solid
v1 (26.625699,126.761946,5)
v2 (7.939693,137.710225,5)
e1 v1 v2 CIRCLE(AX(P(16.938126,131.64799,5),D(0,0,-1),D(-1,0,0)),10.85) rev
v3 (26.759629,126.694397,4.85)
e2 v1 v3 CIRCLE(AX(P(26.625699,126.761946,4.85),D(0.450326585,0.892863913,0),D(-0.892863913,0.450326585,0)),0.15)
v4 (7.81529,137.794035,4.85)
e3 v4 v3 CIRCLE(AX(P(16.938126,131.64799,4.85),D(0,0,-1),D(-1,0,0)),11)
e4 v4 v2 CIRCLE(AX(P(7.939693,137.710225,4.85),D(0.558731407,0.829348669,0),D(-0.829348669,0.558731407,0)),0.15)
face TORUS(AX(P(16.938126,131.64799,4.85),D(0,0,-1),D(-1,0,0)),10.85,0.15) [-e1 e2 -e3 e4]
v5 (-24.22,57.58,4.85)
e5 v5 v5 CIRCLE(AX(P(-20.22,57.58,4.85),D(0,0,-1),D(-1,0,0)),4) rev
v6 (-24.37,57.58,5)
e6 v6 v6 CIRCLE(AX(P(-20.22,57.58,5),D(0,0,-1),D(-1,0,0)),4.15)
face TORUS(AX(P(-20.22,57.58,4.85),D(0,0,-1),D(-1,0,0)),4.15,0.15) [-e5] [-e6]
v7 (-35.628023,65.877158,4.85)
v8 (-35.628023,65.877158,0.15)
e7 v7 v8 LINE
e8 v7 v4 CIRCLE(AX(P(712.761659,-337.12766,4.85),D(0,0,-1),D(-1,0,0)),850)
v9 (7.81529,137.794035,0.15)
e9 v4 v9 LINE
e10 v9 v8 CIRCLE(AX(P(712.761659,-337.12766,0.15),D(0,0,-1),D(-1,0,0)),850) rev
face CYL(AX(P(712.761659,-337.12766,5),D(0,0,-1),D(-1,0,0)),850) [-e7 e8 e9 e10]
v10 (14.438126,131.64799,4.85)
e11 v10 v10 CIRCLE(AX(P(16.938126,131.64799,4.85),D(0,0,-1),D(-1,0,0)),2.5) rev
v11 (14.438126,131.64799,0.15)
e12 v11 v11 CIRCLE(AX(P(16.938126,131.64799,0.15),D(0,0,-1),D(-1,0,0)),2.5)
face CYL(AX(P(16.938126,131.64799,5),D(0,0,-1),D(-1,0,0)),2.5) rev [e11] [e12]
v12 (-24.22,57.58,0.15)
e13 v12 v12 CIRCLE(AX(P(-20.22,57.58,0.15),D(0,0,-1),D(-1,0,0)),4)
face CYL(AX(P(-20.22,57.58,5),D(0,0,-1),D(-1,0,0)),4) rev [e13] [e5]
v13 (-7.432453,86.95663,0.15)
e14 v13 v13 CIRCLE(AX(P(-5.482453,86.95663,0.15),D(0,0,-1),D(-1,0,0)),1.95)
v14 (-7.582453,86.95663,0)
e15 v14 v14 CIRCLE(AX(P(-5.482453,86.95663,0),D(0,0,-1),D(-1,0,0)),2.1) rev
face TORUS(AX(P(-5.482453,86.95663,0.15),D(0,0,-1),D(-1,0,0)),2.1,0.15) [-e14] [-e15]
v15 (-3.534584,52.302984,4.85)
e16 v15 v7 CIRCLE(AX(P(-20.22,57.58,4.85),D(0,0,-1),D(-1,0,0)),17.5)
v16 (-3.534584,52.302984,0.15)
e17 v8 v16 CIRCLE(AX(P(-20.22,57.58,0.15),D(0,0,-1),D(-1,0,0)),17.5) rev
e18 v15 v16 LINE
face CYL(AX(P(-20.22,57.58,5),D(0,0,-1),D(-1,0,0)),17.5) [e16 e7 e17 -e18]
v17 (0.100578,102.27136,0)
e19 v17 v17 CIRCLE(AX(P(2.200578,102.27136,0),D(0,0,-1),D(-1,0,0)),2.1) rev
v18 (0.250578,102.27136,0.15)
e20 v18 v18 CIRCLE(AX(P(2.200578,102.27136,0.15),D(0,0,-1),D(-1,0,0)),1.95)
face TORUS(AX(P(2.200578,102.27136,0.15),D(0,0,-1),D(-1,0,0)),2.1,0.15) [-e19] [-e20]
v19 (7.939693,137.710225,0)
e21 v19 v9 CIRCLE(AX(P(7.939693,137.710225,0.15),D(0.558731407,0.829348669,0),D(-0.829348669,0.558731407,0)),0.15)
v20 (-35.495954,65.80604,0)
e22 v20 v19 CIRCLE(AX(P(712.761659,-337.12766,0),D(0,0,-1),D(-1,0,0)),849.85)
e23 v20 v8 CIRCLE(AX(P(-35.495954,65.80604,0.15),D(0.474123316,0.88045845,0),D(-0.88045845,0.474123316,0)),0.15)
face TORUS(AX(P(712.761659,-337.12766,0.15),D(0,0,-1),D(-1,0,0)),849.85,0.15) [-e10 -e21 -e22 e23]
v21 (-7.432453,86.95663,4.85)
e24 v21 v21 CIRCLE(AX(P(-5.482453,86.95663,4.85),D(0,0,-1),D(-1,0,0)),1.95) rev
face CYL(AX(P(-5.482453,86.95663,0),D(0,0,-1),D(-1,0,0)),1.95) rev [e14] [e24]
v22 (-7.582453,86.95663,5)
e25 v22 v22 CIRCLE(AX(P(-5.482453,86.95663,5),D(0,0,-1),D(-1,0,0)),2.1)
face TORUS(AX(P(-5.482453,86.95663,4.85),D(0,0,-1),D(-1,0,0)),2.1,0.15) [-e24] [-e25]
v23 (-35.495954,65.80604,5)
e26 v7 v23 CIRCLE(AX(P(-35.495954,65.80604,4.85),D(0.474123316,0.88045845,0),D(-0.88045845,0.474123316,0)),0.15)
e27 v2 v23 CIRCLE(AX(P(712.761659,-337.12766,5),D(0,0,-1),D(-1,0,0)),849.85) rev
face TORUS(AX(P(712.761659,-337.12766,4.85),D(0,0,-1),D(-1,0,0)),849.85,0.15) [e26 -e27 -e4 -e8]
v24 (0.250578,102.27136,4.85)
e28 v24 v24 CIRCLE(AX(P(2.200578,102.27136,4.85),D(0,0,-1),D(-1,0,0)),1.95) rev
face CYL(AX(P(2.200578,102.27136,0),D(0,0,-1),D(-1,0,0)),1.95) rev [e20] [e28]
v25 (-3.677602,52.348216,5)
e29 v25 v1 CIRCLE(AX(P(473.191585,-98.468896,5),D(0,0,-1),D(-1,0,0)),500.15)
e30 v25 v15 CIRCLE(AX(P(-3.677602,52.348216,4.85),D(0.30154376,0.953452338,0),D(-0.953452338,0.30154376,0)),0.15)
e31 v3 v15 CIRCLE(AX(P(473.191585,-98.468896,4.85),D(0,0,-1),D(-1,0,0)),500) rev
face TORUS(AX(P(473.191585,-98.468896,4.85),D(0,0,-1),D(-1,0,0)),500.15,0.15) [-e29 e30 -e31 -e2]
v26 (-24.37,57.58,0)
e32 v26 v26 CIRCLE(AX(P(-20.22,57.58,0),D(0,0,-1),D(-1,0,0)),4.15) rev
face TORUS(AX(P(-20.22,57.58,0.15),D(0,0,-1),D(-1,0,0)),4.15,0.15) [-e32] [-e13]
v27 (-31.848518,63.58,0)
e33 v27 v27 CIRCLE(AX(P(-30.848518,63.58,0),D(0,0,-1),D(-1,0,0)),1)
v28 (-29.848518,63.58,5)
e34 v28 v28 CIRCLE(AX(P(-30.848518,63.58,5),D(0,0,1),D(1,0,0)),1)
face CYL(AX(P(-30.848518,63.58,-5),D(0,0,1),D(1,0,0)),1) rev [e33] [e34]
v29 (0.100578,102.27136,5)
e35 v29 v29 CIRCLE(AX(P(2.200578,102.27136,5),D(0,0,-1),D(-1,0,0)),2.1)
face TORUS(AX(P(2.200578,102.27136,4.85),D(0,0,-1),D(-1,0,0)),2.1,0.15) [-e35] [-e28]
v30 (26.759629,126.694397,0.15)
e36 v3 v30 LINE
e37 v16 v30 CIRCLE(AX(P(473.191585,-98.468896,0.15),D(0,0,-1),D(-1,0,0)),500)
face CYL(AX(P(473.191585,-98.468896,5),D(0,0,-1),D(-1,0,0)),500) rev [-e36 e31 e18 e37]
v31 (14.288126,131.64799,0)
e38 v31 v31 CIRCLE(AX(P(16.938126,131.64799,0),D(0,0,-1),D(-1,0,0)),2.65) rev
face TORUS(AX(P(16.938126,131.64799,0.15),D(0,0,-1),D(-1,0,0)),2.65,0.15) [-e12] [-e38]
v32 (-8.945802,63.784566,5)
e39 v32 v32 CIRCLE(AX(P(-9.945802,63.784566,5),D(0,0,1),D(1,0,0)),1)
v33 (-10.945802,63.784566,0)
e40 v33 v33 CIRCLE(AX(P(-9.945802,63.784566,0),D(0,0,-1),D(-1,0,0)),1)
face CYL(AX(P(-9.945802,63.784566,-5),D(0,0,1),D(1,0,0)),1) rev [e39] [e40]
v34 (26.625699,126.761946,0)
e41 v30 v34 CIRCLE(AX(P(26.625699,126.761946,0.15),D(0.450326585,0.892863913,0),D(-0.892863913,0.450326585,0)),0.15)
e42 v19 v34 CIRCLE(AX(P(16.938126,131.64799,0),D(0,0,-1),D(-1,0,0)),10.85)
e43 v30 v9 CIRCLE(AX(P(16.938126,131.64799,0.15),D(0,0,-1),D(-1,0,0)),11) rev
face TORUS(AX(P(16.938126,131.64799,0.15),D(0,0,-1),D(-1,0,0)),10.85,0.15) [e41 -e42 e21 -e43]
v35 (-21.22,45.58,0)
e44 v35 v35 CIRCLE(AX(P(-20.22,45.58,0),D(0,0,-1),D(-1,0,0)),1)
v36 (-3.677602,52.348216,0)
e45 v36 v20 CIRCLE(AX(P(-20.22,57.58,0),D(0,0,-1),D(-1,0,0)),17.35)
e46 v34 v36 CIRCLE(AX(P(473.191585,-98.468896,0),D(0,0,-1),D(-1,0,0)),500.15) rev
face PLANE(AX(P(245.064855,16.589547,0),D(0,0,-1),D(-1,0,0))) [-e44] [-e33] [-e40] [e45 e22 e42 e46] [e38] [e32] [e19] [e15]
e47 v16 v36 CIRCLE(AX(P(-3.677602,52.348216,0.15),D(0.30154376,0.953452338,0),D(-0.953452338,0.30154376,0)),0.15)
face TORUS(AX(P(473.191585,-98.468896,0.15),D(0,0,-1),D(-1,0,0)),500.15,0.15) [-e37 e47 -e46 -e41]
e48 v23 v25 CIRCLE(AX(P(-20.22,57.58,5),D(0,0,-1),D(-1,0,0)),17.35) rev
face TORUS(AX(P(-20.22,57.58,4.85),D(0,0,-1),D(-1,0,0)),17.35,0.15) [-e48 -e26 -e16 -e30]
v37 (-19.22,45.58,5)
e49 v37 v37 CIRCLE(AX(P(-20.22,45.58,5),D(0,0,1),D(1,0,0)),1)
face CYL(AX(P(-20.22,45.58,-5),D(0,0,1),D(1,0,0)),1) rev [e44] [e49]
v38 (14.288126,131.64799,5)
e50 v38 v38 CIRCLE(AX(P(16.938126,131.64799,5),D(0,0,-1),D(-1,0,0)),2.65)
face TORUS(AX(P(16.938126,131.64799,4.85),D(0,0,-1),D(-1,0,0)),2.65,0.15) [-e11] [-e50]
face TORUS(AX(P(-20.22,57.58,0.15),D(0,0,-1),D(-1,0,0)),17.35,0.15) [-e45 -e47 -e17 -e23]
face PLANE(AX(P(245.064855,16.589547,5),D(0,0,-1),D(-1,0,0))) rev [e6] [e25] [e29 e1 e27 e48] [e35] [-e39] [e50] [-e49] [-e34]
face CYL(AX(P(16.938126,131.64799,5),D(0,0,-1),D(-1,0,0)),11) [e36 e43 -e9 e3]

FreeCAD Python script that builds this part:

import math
import FreeCAD as App
import Part
import Sketcher


def edges_at(feature, points):
    """Names of the edges that pass closest to the given points."""
    edges = feature.Shape.Edges
    near = lambda p: min(range(len(edges)), key=lambda i: edges[i].distToShape(Part.Vertex(*p))[0])
    return sorted({f"Edge{near(p) + 1}" for p in points})

doc = App.newDocument("Part")
body = doc.addObject("PartDesign::Body", "Body")

sketch1 = doc.addObject("Sketcher::SketchObject", "Sketch")
body.addObject(sketch1)
sketch1.AttachmentSupport = (doc.XY_Plane, [""])
sketch1.MapMode = "FlatFace"
sketch1.addGeometry([
    Part.ArcOfCircle(Part.Circle(App.Vector(712.76166, -337.127661, 0), App.Vector(0, 0, 1), 850), math.radians(146.031889), math.radians(151.697715)),
    Part.ArcOfCircle(Part.Circle(App.Vector(-20.22, 57.58, 0), App.Vector(0, 0, 1), 17.5), math.radians(151.697715), math.radians(342.449651)),
    Part.ArcOfCircle(Part.Circle(App.Vector(473.191585, -98.468896, 0), App.Vector(0, 0, 1), 500), math.radians(153.235361), math.radians(162.449651)),
    Part.ArcOfCircle(Part.Circle(App.Vector(16.938126, 131.64799, 0), App.Vector(0, 0, 1), 11), math.radians(-26.764639), math.radians(146.031889)),
    Part.Circle(App.Vector(-20.22, 57.58, 0), App.Vector(0, 0, 1), 4),
    Part.Circle(App.Vector(16.938126, 131.64799, 0), App.Vector(0, 0, 1), 2.5),
], False)
sketch1.addConstraint([
    Sketcher.Constraint("Tangent", 0, 2, 1, 1),
    Sketcher.Constraint("Tangent", 1, 2, 2, 2),
    Sketcher.Constraint("Tangent", 2, 1, 3, 1),
    Sketcher.Constraint("Tangent", 3, 2, 0, 1),
    Sketcher.Constraint("Coincident", 4, 3, 1, 3),
    Sketcher.Constraint("Coincident", 5, 3, 3, 3),
    Sketcher.Constraint("Diameter", 4, 8.0),
    Sketcher.Constraint("Diameter", 5, 5.0),
    Sketcher.Constraint("Radius", 0, 850.0),
    Sketcher.Constraint("Radius", 2, 500.0),
    Sketcher.Constraint("Radius", 3, 11.0),
    Sketcher.Constraint("Radius", 1, 17.5),
    Sketcher.Constraint("DistanceX", 1, 3, -1, 1, 20.22),
    Sketcher.Constraint("DistanceY", -1, 1, 1, 3, 57.58),
    Sketcher.Constraint("DistanceX", -1, 1, 0, 3, 712.76166),
    Sketcher.Constraint("DistanceY", -1, 1, 3, 3, 131.64799),
])
pad1 = doc.addObject("PartDesign::Pad", "Pad")
body.addObject(pad1)
pad1.Profile = sketch1
pad1.Length = 5

sketch2 = doc.addObject("Sketcher::SketchObject", "Sketch001")
body.addObject(sketch2)
sketch2.AttachmentSupport = (doc.XY_Plane, [""])
sketch2.MapMode = "FlatFace"
sketch2.addGeometry([
    Part.Circle(App.Vector(2.200578, 102.27136, 0), App.Vector(0, 0, 1), 1.95),
    Part.Circle(App.Vector(-5.482453, 86.95663, 0), App.Vector(0, 0, 1), 1.95),
], False)
sketch2.addConstraint([
    Sketcher.Constraint("Equal", 0, 1),
    Sketcher.Constraint("Diameter", 0, 3.9),
    Sketcher.Constraint("DistanceX", -1, 1, 0, 3, 2.200578),
    Sketcher.Constraint("DistanceY", -1, 1, 0, 3, 102.27136),
    Sketcher.Constraint("DistanceY", -1, 1, 1, 3, 86.95663),
    Sketcher.Constraint("DistanceX", 1, 3, 0, 3, 7.683031),
])
doc.recompute()
hole = doc.addObject("PartDesign::Hole", "Hole")
body.addObject(hole)
hole.Profile = sketch2
hole.ThreadType = "None"
hole.Diameter = 3.9
hole.DepthType = "ThroughAll"
hole.Reversed = True
doc.recompute()

fillet = doc.addObject("PartDesign::Fillet", "Fillet")
body.addObject(fillet)
fillet.Base = (hole, edges_at(hole, [
    (-27.037, 41.462, 5),
    (-24.22, 57.58, 0),
    (-24.22, 57.58, 5),
    (10.116, 90.108, 5),
    (14.438, 131.648, 0),
    (14.438, 131.648, 5),
    (-7.432, 86.957, 0),
    (-7.432, 86.957, 5),
    (0.251, 102.271, 0),
    (0.251, 102.271, 5),
    (22.499, 141.139, 5),
    (10.116, 90.108, 0),
    (-27.037, 41.462, 0),
    (-14.796, 102.373, 0),
    (22.499, 141.139, 0),
    (-14.796, 102.373, 5),
]))
fillet.Radius = 0.15

sketch3 = doc.addObject("Sketcher::SketchObject", "Sketch002")
body.addObject(sketch3)
sketch3.AttachmentSupport = (doc.XY_Plane, [""])
sketch3.MapMode = "FlatFace"
sketch3.AttachmentOffset = App.Placement(App.Vector(0, 0, 5), App.Rotation())
sketch3.addGeometry([
    Part.Circle(App.Vector(-20.22, 45.58, 0), App.Vector(0, 0, 1), 1),
    Part.Circle(App.Vector(-30.848518, 63.58, 0), App.Vector(0, 0, 1), 1),
    Part.Circle(App.Vector(-9.945802, 63.784566, 0), App.Vector(0, 0, 1), 1),
], False)
sketch3.addConstraint([
    Sketcher.Constraint("Equal", 0, 1),
    Sketcher.Constraint("Equal", 1, 2),
    Sketcher.Constraint("Diameter", 0, 2.0),
    Sketcher.Constraint("DistanceY", 0, 3, 1, 3, 18.0),
    Sketcher.Constraint("DistanceX", 0, 3, -1, 1, 20.22),
    Sketcher.Constraint("DistanceY", -1, 1, 0, 3, 45.58),
    Sketcher.Constraint("DistanceX", 2, 3, -1, 1, 9.945802),
    Sketcher.Constraint("DistanceX", 1, 3, -1, 1, 30.848518),
    Sketcher.Constraint("DistanceY", -1, 1, 2, 3, 63.784566),
])
pocket1 = doc.addObject("PartDesign::Pocket", "Pocket")
body.addObject(pocket1)
pocket1.Profile = sketch3
pocket1.Length = 10

doc.recompute()
